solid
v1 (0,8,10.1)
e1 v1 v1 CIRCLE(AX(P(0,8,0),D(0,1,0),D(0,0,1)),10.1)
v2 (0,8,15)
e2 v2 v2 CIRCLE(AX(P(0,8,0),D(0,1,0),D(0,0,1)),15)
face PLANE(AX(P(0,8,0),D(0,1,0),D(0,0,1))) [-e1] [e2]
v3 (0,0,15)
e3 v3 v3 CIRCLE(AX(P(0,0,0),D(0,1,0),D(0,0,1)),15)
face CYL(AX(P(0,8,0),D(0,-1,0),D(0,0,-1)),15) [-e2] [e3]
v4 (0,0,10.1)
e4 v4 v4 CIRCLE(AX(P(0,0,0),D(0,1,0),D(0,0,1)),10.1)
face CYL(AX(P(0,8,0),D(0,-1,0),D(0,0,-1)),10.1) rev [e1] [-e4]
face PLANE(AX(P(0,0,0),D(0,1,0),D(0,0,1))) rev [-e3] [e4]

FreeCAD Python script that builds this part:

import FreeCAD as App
import Part
import Sketcher

V = App.Vector

doc = App.newDocument("Part")
params = doc.addObject("Spreadsheet::Sheet", "Params")
for row, (alias, value) in enumerate([
    ("sketch1_diameter", "30 mm"),
    ("sketch1_diameter2", "20.2 mm"),
    ("pad1_length", "8 mm"),
], start=1):
    params.set(f"A{row}", alias)
    params.set(f"B{row}", "=" + value)
    params.setAlias(f"B{row}", alias)

body = doc.addObject("PartDesign::Body", "Body")

# Sketch on XZ plane
sketch1 = doc.addObject("Sketcher::SketchObject", "Sketch")
body.addObject(sketch1)
sketch1.AttachmentSupport = (doc.XZ_Plane, [""])
sketch1.MapMode = "FlatFace"
sketch1.addGeometry([
    Part.Circle(V(0, 0, 0), V(0, 0, 1), 15),
    Part.Circle(V(0, 0, 0), V(0, 0, 1), 10),
], False)
sketch1.addConstraint([
    Sketcher.Constraint("Coincident", 0, 3, -1, 1),
    Sketcher.Constraint("Coincident", 1, 3, -1, 1),
    Sketcher.Constraint("Diameter", 0, 30.0),
    Sketcher.Constraint("Diameter", 1, 20.2),
])
sketch1.setExpression("Constraints[2]", "Params.sketch1_diameter")
sketch1.setExpression("Constraints[3]", "Params.sketch1_diameter2")
pad1 = doc.addObject("PartDesign::Pad", "Pad")
body.addObject(pad1)
pad1.Profile = sketch1
pad1.setExpression("Length", "Params.pad1_length")
pad1.Reversed = True

doc.recompute()
